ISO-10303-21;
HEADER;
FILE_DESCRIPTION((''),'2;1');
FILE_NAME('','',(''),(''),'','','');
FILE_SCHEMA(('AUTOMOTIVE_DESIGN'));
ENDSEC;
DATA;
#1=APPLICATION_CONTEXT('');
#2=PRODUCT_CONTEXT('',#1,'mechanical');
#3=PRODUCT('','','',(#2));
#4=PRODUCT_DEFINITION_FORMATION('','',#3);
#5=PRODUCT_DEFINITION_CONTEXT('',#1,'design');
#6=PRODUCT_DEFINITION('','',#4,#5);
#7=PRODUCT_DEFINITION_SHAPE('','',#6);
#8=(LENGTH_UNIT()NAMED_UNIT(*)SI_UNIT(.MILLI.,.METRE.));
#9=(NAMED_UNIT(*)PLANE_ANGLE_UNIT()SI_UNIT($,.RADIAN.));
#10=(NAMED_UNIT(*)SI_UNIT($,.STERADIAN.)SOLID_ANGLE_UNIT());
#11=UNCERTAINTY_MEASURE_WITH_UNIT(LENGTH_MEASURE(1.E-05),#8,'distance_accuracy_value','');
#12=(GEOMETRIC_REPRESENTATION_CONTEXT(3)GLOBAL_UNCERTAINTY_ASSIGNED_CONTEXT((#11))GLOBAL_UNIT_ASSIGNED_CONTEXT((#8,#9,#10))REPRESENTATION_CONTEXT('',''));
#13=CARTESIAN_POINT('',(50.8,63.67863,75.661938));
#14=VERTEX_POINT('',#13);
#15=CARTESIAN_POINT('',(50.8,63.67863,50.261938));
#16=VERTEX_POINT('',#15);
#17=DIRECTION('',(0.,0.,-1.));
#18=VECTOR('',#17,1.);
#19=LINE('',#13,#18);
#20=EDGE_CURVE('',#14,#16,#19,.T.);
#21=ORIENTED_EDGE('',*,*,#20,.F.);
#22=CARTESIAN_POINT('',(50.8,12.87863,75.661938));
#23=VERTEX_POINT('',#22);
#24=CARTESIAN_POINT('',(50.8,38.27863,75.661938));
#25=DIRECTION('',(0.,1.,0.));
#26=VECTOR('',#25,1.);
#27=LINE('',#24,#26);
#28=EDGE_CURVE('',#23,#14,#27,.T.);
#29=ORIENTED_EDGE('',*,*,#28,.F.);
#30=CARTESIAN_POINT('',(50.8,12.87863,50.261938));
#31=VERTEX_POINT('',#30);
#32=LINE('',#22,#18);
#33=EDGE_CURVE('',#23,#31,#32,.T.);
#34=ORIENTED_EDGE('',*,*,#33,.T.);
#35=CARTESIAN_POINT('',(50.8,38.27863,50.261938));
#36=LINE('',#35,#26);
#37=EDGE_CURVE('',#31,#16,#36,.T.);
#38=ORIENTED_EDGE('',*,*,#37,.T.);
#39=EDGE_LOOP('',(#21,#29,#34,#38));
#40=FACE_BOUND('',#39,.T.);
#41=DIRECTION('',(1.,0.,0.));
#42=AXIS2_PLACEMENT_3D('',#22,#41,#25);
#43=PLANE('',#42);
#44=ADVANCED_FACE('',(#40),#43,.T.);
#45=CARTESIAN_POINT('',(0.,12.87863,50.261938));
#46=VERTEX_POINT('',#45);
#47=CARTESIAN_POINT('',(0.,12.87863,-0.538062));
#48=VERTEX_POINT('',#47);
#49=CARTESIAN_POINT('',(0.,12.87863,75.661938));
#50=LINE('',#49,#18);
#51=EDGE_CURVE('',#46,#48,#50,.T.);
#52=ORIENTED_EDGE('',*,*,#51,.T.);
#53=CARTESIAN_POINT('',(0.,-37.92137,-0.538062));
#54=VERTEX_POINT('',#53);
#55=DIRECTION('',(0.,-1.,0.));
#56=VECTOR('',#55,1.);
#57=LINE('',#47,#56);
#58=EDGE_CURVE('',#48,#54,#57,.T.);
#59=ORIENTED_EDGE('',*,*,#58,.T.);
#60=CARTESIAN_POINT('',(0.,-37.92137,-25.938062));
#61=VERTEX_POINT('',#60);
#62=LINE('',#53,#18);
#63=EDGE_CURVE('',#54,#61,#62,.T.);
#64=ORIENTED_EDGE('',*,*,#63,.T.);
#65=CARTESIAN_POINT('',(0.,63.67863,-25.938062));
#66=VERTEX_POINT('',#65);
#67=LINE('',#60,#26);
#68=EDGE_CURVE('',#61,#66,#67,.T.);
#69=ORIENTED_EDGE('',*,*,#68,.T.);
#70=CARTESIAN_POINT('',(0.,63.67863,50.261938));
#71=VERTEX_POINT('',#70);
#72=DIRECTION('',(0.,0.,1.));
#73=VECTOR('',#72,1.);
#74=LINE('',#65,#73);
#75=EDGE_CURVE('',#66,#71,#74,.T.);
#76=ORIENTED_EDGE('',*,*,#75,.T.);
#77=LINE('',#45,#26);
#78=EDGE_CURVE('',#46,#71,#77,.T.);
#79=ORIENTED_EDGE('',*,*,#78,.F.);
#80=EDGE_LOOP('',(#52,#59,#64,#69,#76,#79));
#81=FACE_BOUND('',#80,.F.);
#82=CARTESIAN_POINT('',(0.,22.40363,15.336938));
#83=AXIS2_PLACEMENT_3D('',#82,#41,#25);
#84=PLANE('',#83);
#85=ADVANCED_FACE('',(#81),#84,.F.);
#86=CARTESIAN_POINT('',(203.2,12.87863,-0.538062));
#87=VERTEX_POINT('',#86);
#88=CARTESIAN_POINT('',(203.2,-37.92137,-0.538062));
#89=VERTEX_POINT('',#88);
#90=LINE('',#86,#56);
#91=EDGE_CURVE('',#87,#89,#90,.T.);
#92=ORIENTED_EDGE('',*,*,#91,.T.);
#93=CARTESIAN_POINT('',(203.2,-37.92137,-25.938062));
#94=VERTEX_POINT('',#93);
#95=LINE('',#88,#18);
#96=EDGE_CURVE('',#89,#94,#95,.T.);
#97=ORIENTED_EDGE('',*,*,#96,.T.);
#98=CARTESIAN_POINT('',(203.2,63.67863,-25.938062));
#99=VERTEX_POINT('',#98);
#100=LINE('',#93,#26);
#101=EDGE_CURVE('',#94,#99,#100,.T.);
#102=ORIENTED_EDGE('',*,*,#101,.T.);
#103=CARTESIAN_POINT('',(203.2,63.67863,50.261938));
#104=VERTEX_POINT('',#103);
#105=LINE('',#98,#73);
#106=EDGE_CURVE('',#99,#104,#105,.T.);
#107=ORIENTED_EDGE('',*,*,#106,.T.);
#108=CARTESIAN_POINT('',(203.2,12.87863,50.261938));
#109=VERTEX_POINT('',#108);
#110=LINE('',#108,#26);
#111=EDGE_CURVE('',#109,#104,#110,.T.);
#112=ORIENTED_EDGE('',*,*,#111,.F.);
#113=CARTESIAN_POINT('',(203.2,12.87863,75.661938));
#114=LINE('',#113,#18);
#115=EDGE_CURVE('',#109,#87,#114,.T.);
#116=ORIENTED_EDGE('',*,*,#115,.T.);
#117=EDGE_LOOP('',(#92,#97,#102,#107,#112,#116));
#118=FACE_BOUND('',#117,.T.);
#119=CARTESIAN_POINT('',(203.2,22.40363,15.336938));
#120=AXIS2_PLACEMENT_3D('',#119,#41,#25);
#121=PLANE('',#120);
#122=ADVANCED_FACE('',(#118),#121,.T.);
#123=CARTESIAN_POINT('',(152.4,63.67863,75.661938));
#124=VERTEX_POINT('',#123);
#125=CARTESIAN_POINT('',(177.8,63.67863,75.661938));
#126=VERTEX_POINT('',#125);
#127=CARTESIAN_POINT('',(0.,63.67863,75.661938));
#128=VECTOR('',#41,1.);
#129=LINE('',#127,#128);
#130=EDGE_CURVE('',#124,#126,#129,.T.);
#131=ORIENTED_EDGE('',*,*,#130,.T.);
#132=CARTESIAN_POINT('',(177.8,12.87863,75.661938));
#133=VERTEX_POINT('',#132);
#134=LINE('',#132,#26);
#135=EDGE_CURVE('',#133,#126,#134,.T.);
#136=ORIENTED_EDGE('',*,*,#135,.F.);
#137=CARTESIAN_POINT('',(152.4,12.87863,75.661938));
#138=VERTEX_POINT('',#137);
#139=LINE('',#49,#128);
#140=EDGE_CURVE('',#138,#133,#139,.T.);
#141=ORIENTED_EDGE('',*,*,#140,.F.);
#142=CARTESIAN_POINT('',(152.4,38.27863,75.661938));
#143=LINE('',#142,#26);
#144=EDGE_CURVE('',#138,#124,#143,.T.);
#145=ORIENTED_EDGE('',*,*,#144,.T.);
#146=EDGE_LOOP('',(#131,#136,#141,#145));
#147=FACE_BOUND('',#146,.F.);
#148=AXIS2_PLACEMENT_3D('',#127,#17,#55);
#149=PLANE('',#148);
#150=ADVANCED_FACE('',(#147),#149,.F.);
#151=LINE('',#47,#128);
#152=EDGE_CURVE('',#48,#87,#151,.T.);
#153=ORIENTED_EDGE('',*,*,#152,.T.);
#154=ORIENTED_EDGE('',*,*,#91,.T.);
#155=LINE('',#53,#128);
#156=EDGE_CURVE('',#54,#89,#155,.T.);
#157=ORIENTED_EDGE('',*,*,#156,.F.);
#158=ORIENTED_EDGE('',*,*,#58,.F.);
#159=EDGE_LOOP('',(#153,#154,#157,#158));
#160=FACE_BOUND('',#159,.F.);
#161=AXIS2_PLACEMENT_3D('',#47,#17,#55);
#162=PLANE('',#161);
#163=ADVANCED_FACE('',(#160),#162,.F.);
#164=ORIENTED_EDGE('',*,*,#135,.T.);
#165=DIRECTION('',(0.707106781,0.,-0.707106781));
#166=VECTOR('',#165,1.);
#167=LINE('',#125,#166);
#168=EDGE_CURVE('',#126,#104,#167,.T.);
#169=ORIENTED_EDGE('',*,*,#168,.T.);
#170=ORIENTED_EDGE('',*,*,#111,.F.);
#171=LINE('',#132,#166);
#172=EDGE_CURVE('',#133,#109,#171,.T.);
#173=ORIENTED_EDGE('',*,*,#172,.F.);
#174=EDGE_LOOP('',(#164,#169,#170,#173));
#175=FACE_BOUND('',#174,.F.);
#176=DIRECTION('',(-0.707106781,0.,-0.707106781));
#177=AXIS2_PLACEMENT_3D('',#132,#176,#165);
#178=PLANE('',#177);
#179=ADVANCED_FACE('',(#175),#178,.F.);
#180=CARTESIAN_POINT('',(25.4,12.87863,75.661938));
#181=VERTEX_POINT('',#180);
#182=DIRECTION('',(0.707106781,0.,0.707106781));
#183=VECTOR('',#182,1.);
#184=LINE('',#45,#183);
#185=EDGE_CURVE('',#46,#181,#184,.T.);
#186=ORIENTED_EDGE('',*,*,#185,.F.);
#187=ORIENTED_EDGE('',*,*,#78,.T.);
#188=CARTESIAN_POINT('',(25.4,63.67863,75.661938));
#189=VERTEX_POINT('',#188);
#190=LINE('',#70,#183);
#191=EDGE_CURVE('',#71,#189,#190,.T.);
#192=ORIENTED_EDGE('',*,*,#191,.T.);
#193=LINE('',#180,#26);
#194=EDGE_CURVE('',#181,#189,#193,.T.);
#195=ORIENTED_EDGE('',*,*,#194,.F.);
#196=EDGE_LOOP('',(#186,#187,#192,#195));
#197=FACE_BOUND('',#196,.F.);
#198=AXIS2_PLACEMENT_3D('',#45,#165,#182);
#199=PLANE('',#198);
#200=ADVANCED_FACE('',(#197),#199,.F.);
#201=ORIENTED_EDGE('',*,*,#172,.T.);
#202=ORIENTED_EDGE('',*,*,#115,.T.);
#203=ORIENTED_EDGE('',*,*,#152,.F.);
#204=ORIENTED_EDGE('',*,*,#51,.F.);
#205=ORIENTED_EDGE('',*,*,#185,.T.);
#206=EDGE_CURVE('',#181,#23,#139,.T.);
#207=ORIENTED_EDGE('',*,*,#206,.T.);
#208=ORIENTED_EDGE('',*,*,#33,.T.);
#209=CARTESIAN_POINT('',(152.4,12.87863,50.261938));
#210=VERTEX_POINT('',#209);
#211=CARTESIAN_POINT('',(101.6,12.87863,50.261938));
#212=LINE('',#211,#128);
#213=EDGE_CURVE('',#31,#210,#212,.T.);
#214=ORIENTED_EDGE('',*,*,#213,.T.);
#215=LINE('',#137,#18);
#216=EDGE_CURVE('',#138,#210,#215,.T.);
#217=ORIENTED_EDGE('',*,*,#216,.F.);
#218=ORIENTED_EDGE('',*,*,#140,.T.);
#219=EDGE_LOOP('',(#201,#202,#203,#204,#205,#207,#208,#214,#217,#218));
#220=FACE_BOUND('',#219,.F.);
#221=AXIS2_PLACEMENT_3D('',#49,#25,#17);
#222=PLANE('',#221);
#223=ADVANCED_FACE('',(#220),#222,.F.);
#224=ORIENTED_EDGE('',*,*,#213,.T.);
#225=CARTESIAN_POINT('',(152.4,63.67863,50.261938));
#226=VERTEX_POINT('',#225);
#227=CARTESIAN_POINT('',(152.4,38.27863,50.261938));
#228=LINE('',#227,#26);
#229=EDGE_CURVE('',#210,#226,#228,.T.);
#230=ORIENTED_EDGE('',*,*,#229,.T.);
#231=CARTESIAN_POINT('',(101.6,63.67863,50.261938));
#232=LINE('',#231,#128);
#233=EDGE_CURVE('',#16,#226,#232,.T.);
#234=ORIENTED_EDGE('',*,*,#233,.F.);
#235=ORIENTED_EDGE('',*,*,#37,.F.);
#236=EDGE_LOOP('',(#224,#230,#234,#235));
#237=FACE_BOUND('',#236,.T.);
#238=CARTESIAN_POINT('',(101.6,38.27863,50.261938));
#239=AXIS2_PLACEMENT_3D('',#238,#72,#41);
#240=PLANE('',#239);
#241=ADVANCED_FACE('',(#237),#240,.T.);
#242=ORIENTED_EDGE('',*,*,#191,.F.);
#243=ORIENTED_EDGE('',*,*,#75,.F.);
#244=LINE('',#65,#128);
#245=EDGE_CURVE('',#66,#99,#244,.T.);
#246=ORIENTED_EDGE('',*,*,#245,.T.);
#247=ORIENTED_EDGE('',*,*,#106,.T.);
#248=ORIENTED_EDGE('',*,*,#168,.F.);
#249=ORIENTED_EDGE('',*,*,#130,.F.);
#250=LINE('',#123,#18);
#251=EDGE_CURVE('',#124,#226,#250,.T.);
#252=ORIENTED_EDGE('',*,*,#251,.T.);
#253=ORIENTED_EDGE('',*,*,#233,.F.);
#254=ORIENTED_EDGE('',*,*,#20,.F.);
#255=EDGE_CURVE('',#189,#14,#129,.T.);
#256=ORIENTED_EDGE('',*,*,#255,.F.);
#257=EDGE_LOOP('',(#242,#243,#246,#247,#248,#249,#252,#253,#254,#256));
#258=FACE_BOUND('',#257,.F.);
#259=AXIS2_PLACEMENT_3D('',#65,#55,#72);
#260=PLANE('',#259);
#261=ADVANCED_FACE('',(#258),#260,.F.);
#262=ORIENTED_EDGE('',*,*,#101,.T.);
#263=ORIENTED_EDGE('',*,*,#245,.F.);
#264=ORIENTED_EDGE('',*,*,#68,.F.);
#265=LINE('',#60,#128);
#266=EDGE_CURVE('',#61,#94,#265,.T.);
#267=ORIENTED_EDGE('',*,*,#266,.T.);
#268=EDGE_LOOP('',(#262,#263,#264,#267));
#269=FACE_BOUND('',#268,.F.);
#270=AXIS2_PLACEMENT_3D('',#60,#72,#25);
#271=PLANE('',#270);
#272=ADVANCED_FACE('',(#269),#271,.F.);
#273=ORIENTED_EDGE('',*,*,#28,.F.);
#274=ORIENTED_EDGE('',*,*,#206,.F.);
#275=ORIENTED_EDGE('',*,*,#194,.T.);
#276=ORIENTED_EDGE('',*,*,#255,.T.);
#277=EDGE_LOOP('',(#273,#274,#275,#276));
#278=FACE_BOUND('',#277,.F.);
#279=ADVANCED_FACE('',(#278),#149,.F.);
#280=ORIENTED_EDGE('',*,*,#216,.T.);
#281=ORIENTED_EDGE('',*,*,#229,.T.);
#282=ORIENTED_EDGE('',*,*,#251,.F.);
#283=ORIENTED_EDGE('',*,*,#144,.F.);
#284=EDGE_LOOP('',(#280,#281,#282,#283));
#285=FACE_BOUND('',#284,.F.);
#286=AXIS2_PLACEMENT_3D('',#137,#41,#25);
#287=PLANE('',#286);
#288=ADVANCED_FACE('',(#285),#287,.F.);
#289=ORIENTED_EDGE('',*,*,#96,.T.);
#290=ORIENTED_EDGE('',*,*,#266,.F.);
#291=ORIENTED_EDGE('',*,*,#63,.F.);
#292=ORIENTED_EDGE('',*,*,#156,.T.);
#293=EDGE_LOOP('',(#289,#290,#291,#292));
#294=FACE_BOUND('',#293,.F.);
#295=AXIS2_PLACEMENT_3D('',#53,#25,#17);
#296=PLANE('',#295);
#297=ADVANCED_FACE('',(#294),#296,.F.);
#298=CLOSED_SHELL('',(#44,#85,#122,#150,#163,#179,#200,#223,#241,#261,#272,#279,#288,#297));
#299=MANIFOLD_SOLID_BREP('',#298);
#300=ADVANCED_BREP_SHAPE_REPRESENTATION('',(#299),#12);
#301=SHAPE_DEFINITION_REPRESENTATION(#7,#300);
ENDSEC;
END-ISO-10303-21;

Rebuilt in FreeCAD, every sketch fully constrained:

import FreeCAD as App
import Part
import Sketcher

V = App.Vector
Q = App.Units.Quantity

doc = App.newDocument("Part")
body = doc.addObject("PartDesign::Body", "Body")

# Sketch on YZ plane
sketch1 = body.newObject("Sketcher::SketchObject", "Sketch")
sketch1.AttachmentSupport = (doc.getObject("YZ_Plane"), [""])
sketch1.MapMode = "FlatFace"
sketch1.addGeometry([
    Part.LineSegment(V(13, -1, 0), V(-38, -1, 0)),  # 0
    Part.LineSegment(V(-38, -1, 0), V(-38, -26, 0)),  # 1
    Part.LineSegment(V(-38, -26, 0), V(64, -26, 0)),  # 2
    Part.LineSegment(V(64, -26, 0), V(64, 76, 0)),  # 3
    Part.LineSegment(V(64, 76, 0), V(13, 76, 0)),  # 4
    Part.LineSegment(V(13, 76, 0), V(13, -1, 0)),  # 5
], False)
sketch1.addConstraint([
    Sketcher.Constraint("Coincident", 0, 2, 1, 1),
    Sketcher.Constraint("Coincident", 1, 2, 2, 1),
    Sketcher.Constraint("Coincident", 2, 2, 3, 1),
    Sketcher.Constraint("Coincident", 3, 2, 4, 1),
    Sketcher.Constraint("Coincident", 4, 2, 5, 1),
    Sketcher.Constraint("Coincident", 5, 2, 0, 1),
    Sketcher.Constraint("Horizontal", 0),
    Sketcher.Constraint("Vertical", 1),
    Sketcher.Constraint("Horizontal", 2),
    Sketcher.Constraint("Vertical", 3),
    Sketcher.Constraint("Horizontal", 4),
    Sketcher.Constraint("Vertical", 5),
    Sketcher.Constraint("Equal", 0, 4),
    Sketcher.Constraint("Equal", 2, 3),
    Sketcher.Constraint("DistanceX", 0, 2, 0, 1, Q("2 in")),
    Sketcher.Constraint("DistanceY", 1, 2, 1, 1, Q("1 in")),
    Sketcher.Constraint("DistanceX", 0, 2, -1, 1, Q("37.92137 mm")),
    Sketcher.Constraint("DistanceY", 1, 2, -1, 1, Q("25.938062 mm")),
])
pad1 = body.newObject("PartDesign::Pad", "Pad")
pad1.Profile = sketch1
pad1.Length = Q("8 in")

# Sketch on XY plane
sketch2 = body.newObject("Sketcher::SketchObject", "Sketch001")
sketch2.AttachmentSupport = (doc.getObject("XY_Plane"), [""])
sketch2.MapMode = "FlatFace"
sketch2.AttachmentOffset = App.Placement(V(0, 0, -0.538062), App.Rotation())
sketch2.addGeometry([
    Part.LineSegment(V(-38, -51, 0), V(-38, -152, 0)),
    Part.LineSegment(V(-38, -152, 0), V(-13, -152, 0)),
    Part.LineSegment(V(-13, -152, 0), V(-13, -51, 0)),
    Part.LineSegment(V(-13, -51, 0), V(-38, -51, 0)),
], False)
sketch2.addConstraint([
    Sketcher.Constraint("Coincident", 0, 2, 1, 1),
    Sketcher.Constraint("Coincident", 1, 2, 2, 1),
    Sketcher.Constraint("Coincident", 2, 2, 3, 1),
    Sketcher.Constraint("Coincident", 3, 2, 0, 1),
    Sketcher.Constraint("Vertical", 0),
    Sketcher.Constraint("Horizontal", 1),
    Sketcher.Constraint("Vertical", 2),
    Sketcher.Constraint("Horizontal", 3),
    Sketcher.Constraint("DistanceX", 1, 1, 1, 2, Q("1 in")),
    Sketcher.Constraint("DistanceY", 0, 2, 0, 1, Q("4 in")),
    Sketcher.Constraint("DistanceY", 0, 2, -1, 1, Q("6 in")),
    Sketcher.Constraint("DistanceX", 0, 2, -1, 1, Q("37.92137 mm")),
])
pocket1 = body.newObject("PartDesign::Pocket", "Pocket")
pocket1.Profile = sketch2
pocket1.Length = Q("1 in")

# Sketch on XY plane
sketch3 = body.newObject("Sketcher::SketchObject", "Sketch002")
sketch3.AttachmentSupport = (doc.getObject("XY_Plane"), [""])
sketch3.MapMode = "FlatFace"
sketch3.AttachmentOffset = App.Placement(V(0, 0, 75.661938), App.Rotation())
sketch3.addGeometry([
    Part.LineSegment(V(13, -51, 0), V(13, -152, 0)),
    Part.LineSegment(V(13, -152, 0), V(64, -152, 0)),
    Part.LineSegment(V(64, -152, 0), V(64, -51, 0)),
    Part.LineSegment(V(64, -51, 0), V(13, -51, 0)),
], False)
sketch3.addConstraint([
    Sketcher.Constraint("Coincident", 0, 2, 1, 1),
    Sketcher.Constraint("Coincident", 1, 2, 2, 1),
    Sketcher.Constraint("Coincident", 2, 2, 3, 1),
    Sketcher.Constraint("Coincident", 3, 2, 0, 1),
    Sketcher.Constraint("Vertical", 0),
    Sketcher.Constraint("Horizontal", 1),
    Sketcher.Constraint("Vertical", 2),
    Sketcher.Constraint("Horizontal", 3),
    Sketcher.Constraint("DistanceX", 1, 1, 1, 2, Q("2 in")),
    Sketcher.Constraint("DistanceY", 0, 2, 0, 1, Q("4 in")),
    Sketcher.Constraint("DistanceY", 0, 2, -1, 1, Q("6 in")),
    Sketcher.Constraint("DistanceX", -1, 1, 0, 2, Q("12.87863 mm")),
])
pocket2 = body.newObject("PartDesign::Pocket", "Pocket001")
pocket2.Profile = sketch3
pocket2.Length = Q("1 in")

# Sketch on XZ plane
sketch4 = body.newObject("Sketcher::SketchObject", "Sketch003")
sketch4.AttachmentSupport = (doc.getObject("XZ_Plane"), [""])
sketch4.MapMode = "FlatFace"
sketch4.AttachmentOffset = App.Placement(V(0, 0, -12.87863), App.Rotation())
sketch4.addGeometry([
    Part.LineSegment(V(203, 76, 0), V(178, 76, 0)),  # 0
    Part.LineSegment(V(178, 76, 0), V(203, 50, 0)),  # 1
    Part.LineSegment(V(203, 50, 0), V(203, 76, 0)),  # 2
    Part.LineSegment(V(0, 50, 0), V(25, 76, 0)),  # 3
    Part.LineSegment(V(25, 76, 0), V(0, 76, 0)),  # 4
    Part.LineSegment(V(0, 76, 0), V(0, 50, 0)),  # 5
], False)
sketch4.addConstraint([
    Sketcher.Constraint("Coincident", 0, 2, 1, 1),
    Sketcher.Constraint("Coincident", 1, 2, 2, 1),
    Sketcher.Constraint("Coincident", 2, 2, 0, 1),
    Sketcher.Constraint("Coincident", 3, 2, 4, 1),
    Sketcher.Constraint("Coincident", 4, 2, 5, 1),
    Sketcher.Constraint("Coincident", 5, 2, 3, 1),
    Sketcher.Constraint("Horizontal", 0),
    Sketcher.Constraint("Vertical", 2),
    Sketcher.Constraint("Horizontal", 4),
    Sketcher.Constraint("Vertical", 5),
    Sketcher.Constraint("PointOnObject", 4, 2, -2),
    Sketcher.Constraint("Perpendicular", 1, 3),
    Sketcher.Constraint("Horizontal", 2, 2, 3, 2),
    Sketcher.Constraint("Horizontal", 1, 2, 5, 2),
    Sketcher.Constraint("Equal", 0, 4),
    Sketcher.Constraint("DistanceX", 0, 2, 0, 1, Q("1 in")),
    Sketcher.Constraint("DistanceX", -1, 1, 0, 2, Q("7 in")),
    Sketcher.Constraint("DistanceY", -1, 1, 0, 2, Q("75.661938 mm")),
])
pocket3 = body.newObject("PartDesign::Pocket", "Pocket002")
pocket3.Profile = sketch4
pocket3.Length = Q("2 in")

# Sketch on XY plane
sketch5 = body.newObject("Sketcher::SketchObject", "Sketch004")
sketch5.AttachmentSupport = (doc.getObject("XY_Plane"), [""])
sketch5.MapMode = "FlatFace"
sketch5.AttachmentOffset = App.Placement(V(0, 0, 75.661938), App.Rotation())
sketch5.addGeometry([
    Part.LineSegment(V(51, 64, 0), V(51, 13, 0)),
    Part.LineSegment(V(51, 13, 0), V(152, 13, 0)),
    Part.LineSegment(V(152, 13, 0), V(152, 64, 0)),
    Part.LineSegment(V(152, 64, 0), V(51, 64, 0)),
], False)
sketch5.addConstraint([
    Sketcher.Constraint("Coincident", 0, 2, 1, 1),
    Sketcher.Constraint("Coincident", 1, 2, 2, 1),
    Sketcher.Constraint("Coincident", 2, 2, 3, 1),
    Sketcher.Constraint("Coincident", 3, 2, 0, 1),
    Sketcher.Constraint("Vertical", 0),
    Sketcher.Constraint("Horizontal", 1),
    Sketcher.Constraint("Vertical", 2),
    Sketcher.Constraint("Horizontal", 3),
    Sketcher.Constraint("DistanceX", 1, 1, 1, 2, Q("4 in")),
    Sketcher.Constraint("DistanceY", 0, 2, 0, 1, Q("2 in")),
    Sketcher.Constraint("DistanceX", -1, 1, 0, 2, Q("2 in")),
    Sketcher.Constraint("DistanceY", -1, 1, 0, 2, Q("12.87863 mm")),
])
pocket4 = body.newObject("PartDesign::Pocket", "Pocket003")
pocket4.Profile = sketch5
pocket4.Length = Q("1 in")

doc.recompute()
